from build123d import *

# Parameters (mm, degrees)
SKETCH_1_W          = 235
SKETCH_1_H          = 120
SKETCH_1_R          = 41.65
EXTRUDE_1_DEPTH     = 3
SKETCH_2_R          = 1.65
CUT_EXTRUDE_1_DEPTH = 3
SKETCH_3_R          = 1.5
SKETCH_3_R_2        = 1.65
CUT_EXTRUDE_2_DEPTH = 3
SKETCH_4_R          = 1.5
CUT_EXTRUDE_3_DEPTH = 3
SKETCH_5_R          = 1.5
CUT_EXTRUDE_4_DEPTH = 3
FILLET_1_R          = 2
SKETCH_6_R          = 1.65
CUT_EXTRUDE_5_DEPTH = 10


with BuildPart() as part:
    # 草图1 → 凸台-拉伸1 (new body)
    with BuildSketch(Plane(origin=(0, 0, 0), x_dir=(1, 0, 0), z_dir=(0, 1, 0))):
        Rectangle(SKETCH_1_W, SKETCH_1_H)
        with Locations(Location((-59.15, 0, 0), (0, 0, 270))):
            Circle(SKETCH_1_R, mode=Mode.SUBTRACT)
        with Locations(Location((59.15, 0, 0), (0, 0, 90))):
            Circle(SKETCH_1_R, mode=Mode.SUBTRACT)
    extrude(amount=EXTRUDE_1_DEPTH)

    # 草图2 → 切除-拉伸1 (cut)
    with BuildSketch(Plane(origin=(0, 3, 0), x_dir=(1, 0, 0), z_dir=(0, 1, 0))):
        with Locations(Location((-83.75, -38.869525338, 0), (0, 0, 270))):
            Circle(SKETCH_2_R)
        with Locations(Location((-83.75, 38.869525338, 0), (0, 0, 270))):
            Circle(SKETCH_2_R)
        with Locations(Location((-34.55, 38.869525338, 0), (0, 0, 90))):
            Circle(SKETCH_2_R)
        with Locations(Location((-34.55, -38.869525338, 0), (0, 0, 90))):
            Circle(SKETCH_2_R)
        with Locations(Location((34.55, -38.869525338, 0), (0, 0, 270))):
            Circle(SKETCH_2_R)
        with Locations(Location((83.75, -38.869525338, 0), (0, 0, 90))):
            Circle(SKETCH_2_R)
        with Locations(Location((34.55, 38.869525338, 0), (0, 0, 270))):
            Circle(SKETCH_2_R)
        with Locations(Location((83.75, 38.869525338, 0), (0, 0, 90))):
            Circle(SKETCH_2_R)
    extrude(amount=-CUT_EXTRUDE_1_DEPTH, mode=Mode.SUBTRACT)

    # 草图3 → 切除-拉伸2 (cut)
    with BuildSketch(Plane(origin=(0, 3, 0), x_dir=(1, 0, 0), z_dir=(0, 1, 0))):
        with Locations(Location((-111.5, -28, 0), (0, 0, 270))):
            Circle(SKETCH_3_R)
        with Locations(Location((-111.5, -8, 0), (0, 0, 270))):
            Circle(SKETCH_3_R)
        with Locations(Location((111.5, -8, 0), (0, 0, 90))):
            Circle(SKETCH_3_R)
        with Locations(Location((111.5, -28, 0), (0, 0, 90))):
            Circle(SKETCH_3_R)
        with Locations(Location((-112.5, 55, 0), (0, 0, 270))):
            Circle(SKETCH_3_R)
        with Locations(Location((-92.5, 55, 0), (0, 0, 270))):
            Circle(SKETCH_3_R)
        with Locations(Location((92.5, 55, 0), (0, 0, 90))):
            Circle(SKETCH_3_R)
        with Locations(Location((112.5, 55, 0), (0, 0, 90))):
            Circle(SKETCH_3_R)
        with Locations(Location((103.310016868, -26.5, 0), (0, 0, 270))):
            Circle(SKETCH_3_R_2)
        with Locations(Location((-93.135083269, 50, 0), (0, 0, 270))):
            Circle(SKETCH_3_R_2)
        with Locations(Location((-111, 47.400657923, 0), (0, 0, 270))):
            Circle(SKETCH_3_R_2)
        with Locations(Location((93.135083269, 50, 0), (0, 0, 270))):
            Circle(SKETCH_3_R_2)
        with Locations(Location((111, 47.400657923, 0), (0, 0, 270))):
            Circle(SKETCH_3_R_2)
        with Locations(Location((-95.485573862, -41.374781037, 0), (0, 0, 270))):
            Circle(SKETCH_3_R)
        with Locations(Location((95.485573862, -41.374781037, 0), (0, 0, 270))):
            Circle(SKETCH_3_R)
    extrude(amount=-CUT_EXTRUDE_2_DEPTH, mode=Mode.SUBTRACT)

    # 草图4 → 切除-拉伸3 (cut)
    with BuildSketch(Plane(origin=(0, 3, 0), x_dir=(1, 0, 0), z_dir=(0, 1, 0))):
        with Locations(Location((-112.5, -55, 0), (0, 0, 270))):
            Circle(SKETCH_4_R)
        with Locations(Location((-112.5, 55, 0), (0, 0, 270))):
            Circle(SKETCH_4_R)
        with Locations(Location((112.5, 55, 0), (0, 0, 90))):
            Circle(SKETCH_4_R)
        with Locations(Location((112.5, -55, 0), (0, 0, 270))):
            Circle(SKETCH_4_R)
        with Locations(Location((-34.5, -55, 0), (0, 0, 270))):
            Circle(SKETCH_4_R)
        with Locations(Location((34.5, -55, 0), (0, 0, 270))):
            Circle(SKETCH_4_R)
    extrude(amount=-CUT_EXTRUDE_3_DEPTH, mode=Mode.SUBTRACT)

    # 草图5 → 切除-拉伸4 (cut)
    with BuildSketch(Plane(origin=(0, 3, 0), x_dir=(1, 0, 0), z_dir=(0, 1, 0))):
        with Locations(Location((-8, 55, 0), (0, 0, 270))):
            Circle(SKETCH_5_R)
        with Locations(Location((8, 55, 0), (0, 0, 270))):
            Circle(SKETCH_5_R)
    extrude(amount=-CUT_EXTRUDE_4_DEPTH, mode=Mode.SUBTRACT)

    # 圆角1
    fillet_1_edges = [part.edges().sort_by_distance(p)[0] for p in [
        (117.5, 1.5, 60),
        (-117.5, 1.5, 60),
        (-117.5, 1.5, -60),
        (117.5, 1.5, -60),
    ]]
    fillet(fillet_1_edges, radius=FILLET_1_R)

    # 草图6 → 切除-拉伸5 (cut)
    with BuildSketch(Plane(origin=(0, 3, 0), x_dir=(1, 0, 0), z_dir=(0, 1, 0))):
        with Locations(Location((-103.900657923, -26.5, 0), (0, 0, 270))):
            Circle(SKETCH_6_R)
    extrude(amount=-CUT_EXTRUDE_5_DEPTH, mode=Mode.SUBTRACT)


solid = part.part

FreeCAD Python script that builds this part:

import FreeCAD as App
import Part
import Sketcher
from FreeCAD import Vector


def edges_at(feature, points):
    """Names of the edges that pass closest to the given points."""
    edges = feature.Shape.Edges
    near = lambda p: min(range(len(edges)), key=lambda i: edges[i].distToShape(Part.Vertex(*p))[0])
    return sorted({f"Edge{near(p) + 1}" for p in points})

doc = App.newDocument("Part")
params = doc.addObject("Spreadsheet::Sheet", "Params")
for row, (alias, value) in enumerate([
    ("sketch1_diameter", "83.3 mm"),
    ("sketch1_width", "235 mm"),
    ("sketch1_height", "120 mm"),
    ("pad1_length", "3 mm"),
    ("sketch2_diameter", "3.3 mm"),
    ("pocket1_length", "3 mm"),
    ("sketch3_diameter", "3 mm"),
    ("sketch3_diameter2", "3.3 mm"),
    ("pocket2_length", "3 mm"),
    ("sketch4_diameter", "3 mm"),
    ("pocket3_length", "3 mm"),
    ("sketch5_diameter", "3 mm"),
    ("pocket4_length", "3 mm"),
    ("fillet_radius", "2 mm"),
    ("sketch6_diameter", "3.3 mm"),
    ("pocket5_length", "10 mm"),
], start=1):
    params.set(f"A{row}", alias)
    params.set(f"B{row}", "=" + value)
    params.setAlias(f"B{row}", alias)

body = doc.addObject("PartDesign::Body", "Body")

# Sketch on XZ plane
sketch1 = body.newObject("Sketcher::SketchObject", "Sketch")
sketch1.AttachmentSupport = (doc.getObject("XZ_Plane"), [""])
sketch1.MapMode = "FlatFace"
sketch1.addGeometry([
    Part.LineSegment(Vector(-118, -60, 0), Vector(-118, 60, 0)),  # 0
    Part.LineSegment(Vector(-118, 60, 0), Vector(118, 60, 0)),  # 1
    Part.LineSegment(Vector(118, 60, 0), Vector(118, -60, 0)),  # 2
    Part.LineSegment(Vector(118, -60, 0), Vector(-118, -60, 0)),  # 3
    Part.Circle(Vector(-59, 0, 0), Vector(0, 0, 1), 42),  # 4
    Part.Circle(Vector(59, 0, 0), Vector(0, 0, 1), 42),  # 5
], False)
sketch1.addConstraint([
    Sketcher.Constraint("Coincident", 0, 2, 1, 1),
    Sketcher.Constraint("Coincident", 1, 2, 2, 1),
    Sketcher.Constraint("Coincident", 2, 2, 3, 1),
    Sketcher.Constraint("Coincident", 3, 2, 0, 1),
    Sketcher.Constraint("Vertical", 0),
    Sketcher.Constraint("Horizontal", 1),
    Sketcher.Constraint("Vertical", 2),
    Sketcher.Constraint("Horizontal", 3),
    Sketcher.Constraint("Equal", 4, 5),
    Sketcher.Constraint("Symmetric", 4, 3, 5, 3, -1, 1),
    Sketcher.Constraint("Symmetric", 0, 2, 2, 2, -1, 1),
    Sketcher.Constraint("PointOnObject", 4, 3, -1),
    Sketcher.Constraint("Diameter", 4, 83.3),
    Sketcher.Constraint("DistanceX", 1, 1, 1, 2, 235.0),
    Sketcher.Constraint("DistanceY", 0, 1, 0, 2, 120.0),
    Sketcher.Constraint("DistanceX", 4, 3, 5, 3, 118.3),
])
sketch1.setExpression("Constraints[12]", "Params.sketch1_diameter")
sketch1.setExpression("Constraints[13]", "Params.sketch1_width")
sketch1.setExpression("Constraints[14]", "Params.sketch1_height")
pad1 = body.newObject("PartDesign::Pad", "Pad")
pad1.Profile = sketch1
pad1.setExpression("Length", "Params.pad1_length")
pad1.Reversed = True

# Sketch on XZ plane
sketch2 = body.newObject("Sketcher::SketchObject", "Sketch001")
sketch2.AttachmentSupport = (doc.getObject("XZ_Plane"), [""])
sketch2.MapMode = "FlatFace"
sketch2.AttachmentOffset = App.Placement(Vector(0, 0, -3), App.Rotation())
sketch2.addGeometry([
    Part.Circle(Vector(-83.8, 38.9, 0), Vector(0, 0, 1), 1.6),  # 0
    Part.Circle(Vector(-83.8, -38.9, 0), Vector(0, 0, 1), 1.6),  # 1
    Part.Circle(Vector(-34.5, -38.9, 0), Vector(0, 0, 1), 1.6),  # 2
    Part.Circle(Vector(-34.5, 38.9, 0), Vector(0, 0, 1), 1.6),  # 3
    Part.Circle(Vector(34.5, 38.9, 0), Vector(0, 0, 1), 1.6),  # 4
    Part.Circle(Vector(83.8, 38.9, 0), Vector(0, 0, 1), 1.6),  # 5
    Part.Circle(Vector(34.5, -38.9, 0), Vector(0, 0, 1), 1.6),  # 6
    Part.Circle(Vector(83.8, -38.9, 0), Vector(0, 0, 1), 1.6),  # 7
], False)
sketch2.addConstraint([
    Sketcher.Constraint("Equal", 0, 1),
    Sketcher.Constraint("Equal", 1, 2),
    Sketcher.Constraint("Equal", 2, 3),
    Sketcher.Constraint("Equal", 3, 4),
    Sketcher.Constraint("Equal", 4, 5),
    Sketcher.Constraint("Equal", 5, 6),
    Sketcher.Constraint("Equal", 6, 7),
    Sketcher.Constraint("Symmetric", 2, 3, 4, 3, -1, 1),
    Sketcher.Constraint("Symmetric", 1, 3, 5, 3, -1, 1),
    Sketcher.Constraint("Symmetric", 3, 3, 6, 3, -1, 1),
    Sketcher.Constraint("Symmetric", 0, 3, 7, 3, -1, 1),
    Sketcher.Constraint("Symmetric", 3, 3, 4, 3, -2),
    Sketcher.Constraint("Symmetric", 0, 3, 5, 3, -2),
    Sketcher.Constraint("Horizontal", 1, 3, 2, 3),
    Sketcher.Constraint("Diameter", 0, 3.3),
    Sketcher.Constraint("DistanceX", 1, 3, 2, 3, 49.2),
    Sketcher.Constraint("DistanceX", 3, 3, 4, 3, 69.1),
    Sketcher.Constraint("DistanceY", 1, 3, 0, 3, 77.739051),
])
sketch2.setExpression("Constraints[14]", "Params.sketch2_diameter")
pocket1 = body.newObject("PartDesign::Pocket", "Pocket")
pocket1.Profile = sketch2
pocket1.setExpression("Length", "Params.pocket1_length")
pocket1.Reversed = True

# Sketch on XZ plane
sketch3 = body.newObject("Sketcher::SketchObject", "Sketch002")
sketch3.AttachmentSupport = (doc.getObject("XZ_Plane"), [""])
sketch3.MapMode = "FlatFace"
sketch3.AttachmentOffset = App.Placement(Vector(0, 0, -3), App.Rotation())
sketch3.addGeometry([
    Part.Circle(Vector(-111.5, 28, 0), Vector(0, 0, 1), 1.5),  # 0
    Part.Circle(Vector(-111.5, 8, 0), Vector(0, 0, 1), 1.5),  # 1
    Part.Circle(Vector(111.5, 8, 0), Vector(0, 0, 1), 1.5),  # 2
    Part.Circle(Vector(111.5, 28, 0), Vector(0, 0, 1), 1.5),  # 3
    Part.Circle(Vector(-112.5, -55, 0), Vector(0, 0, 1), 1.5),  # 4
    Part.Circle(Vector(-92.5, -55, 0), Vector(0, 0, 1), 1.5),  # 5
    Part.Circle(Vector(92.5, -55, 0), Vector(0, 0, 1), 1.5),  # 6
    Part.Circle(Vector(112.5, -55, 0), Vector(0, 0, 1), 1.5),  # 7
    Part.Circle(Vector(103.3, 26.5, 0), Vector(0, 0, 1), 1.6),  # 8
    Part.Circle(Vector(-93.1, -50, 0), Vector(0, 0, 1), 1.6),  # 9
    Part.Circle(Vector(-111, -47.4, 0), Vector(0, 0, 1), 1.6),  # 10
    Part.Circle(Vector(93.1, -50, 0), Vector(0, 0, 1), 1.6),  # 11
    Part.Circle(Vector(111, -47.4, 0), Vector(0, 0, 1), 1.6),  # 12
    Part.Circle(Vector(-95.5, 41.4, 0), Vector(0, 0, 1), 1.5),  # 13
    Part.Circle(Vector(95.5, 41.4, 0), Vector(0, 0, 1), 1.5),  # 14
], False)
sketch3.addConstraint([
    Sketcher.Constraint("Equal", 0, 1),
    Sketcher.Constraint("Equal", 1, 2),
    Sketcher.Constraint("Equal", 2, 3),
    Sketcher.Constraint("Equal", 3, 4),
    Sketcher.Constraint("Equal", 4, 5),
    Sketcher.Constraint("Equal", 5, 6),
    Sketcher.Constraint("Equal", 6, 7),
    Sketcher.Constraint("Equal", 8, 9),
    Sketcher.Constraint("Equal", 9, 10),
    Sketcher.Constraint("Equal", 10, 11),
    Sketcher.Constraint("Equal", 11, 12),
    Sketcher.Constraint("Equal", 7, 13),
    Sketcher.Constraint("Equal", 13, 14),
    Sketcher.Constraint("Symmetric", 1, 3, 2, 3, -2),
    Sketcher.Constraint("Symmetric", 0, 3, 3, 3, -2),
    Sketcher.Constraint("Symmetric", 5, 3, 6, 3, -2),
    Sketcher.Constraint("Symmetric", 4, 3, 7, 3, -2),
    Sketcher.Constraint("Symmetric", 9, 3, 11, 3, -2),
    Sketcher.Constraint("Symmetric", 10, 3, 12, 3, -2),
    Sketcher.Constraint("Symmetric", 13, 3, 14, 3, -2),
    Sketcher.Constraint("Horizontal", 4, 3, 5, 3),
    Sketcher.Constraint("Vertical", 0, 3, 1, 3),
    Sketcher.Constraint("Diameter", 0, 3.0),
    Sketcher.Constraint("Diameter", 8, 3.3),
    Sketcher.Constraint("DistanceY", -1, 1, 0, 3, 28.0),
    Sketcher.Constraint("DistanceY", -1, 1, 1, 3, 8.0),
    Sketcher.Constraint("DistanceY", 4, 3, -1, 1, 55.0),
    Sketcher.Constraint("DistanceY", 9, 3, -1, 1, 50.0),
    Sketcher.Constraint("DistanceX", 10, 3, -1, 1, 111.0),
    Sketcher.Constraint("DistanceX", 1, 3, 2, 3, 223.0),
    Sketcher.Constraint("DistanceX", 4, 3, 1, 3, 1.0),
    Sketcher.Constraint("DistanceX", 4, 3, 5, 3, 20.0),
    Sketcher.Constraint("DistanceY", -1, 1, 8, 3, 26.5),
    Sketcher.Constraint("DistanceY", -1, 1, 13, 3, 41.374781),
    Sketcher.Constraint("DistanceY", 10, 3, 13, 3, 88.775439),
    Sketcher.Constraint("DistanceX", 13, 3, 9, 3, 2.350491),
    Sketcher.Constraint("DistanceX", -1, 1, 8, 3, 103.310017),
    Sketcher.Constraint("DistanceX", 9, 3, -1, 1, 93.135083),
])
sketch3.setExpression("Constraints[22]", "Params.sketch3_diameter")
sketch3.setExpression("Constraints[23]", "Params.sketch3_diameter2")
pocket2 = body.newObject("PartDesign::Pocket", "Pocket001")
pocket2.Profile = sketch3
pocket2.setExpression("Length", "Params.pocket2_length")
pocket2.Reversed = True

# Sketch on XZ plane
sketch4 = body.newObject("Sketcher::SketchObject", "Sketch003")
sketch4.AttachmentSupport = (doc.getObject("XZ_Plane"), [""])
sketch4.MapMode = "FlatFace"
sketch4.AttachmentOffset = App.Placement(Vector(0, 0, -3), App.Rotation())
sketch4.addGeometry([
    Part.Circle(Vector(-112.5, 55, 0), Vector(0, 0, 1), 1.5),  # 0
    Part.Circle(Vector(-112.5, -55, 0), Vector(0, 0, 1), 1.5),  # 1
    Part.Circle(Vector(112.5, -55, 0), Vector(0, 0, 1), 1.5),  # 2
    Part.Circle(Vector(112.5, 55, 0), Vector(0, 0, 1), 1.5),  # 3
    Part.Circle(Vector(-34.5, 55, 0), Vector(0, 0, 1), 1.5),  # 4
    Part.Circle(Vector(34.5, 55, 0), Vector(0, 0, 1), 1.5),  # 5
], False)
sketch4.addConstraint([
    Sketcher.Constraint("Equal", 0, 1),
    Sketcher.Constraint("Equal", 1, 2),
    Sketcher.Constraint("Equal", 2, 3),
    Sketcher.Constraint("Equal", 3, 4),
    Sketcher.Constraint("Equal", 4, 5),
    Sketcher.Constraint("Symmetric", 0, 3, 2, 3, -1, 1),
    Sketcher.Constraint("Symmetric", 1, 3, 3, 3, -1, 1),
    Sketcher.Constraint("Symmetric", 1, 3, 2, 3, -2),
    Sketcher.Constraint("Symmetric", 4, 3, 5, 3, -2),
    Sketcher.Constraint("Horizontal", 3, 3, 4, 3),
    Sketcher.Constraint("Diameter", 0, 3.0),
    Sketcher.Constraint("DistanceY", -1, 1, 0, 3, 55.0),
    Sketcher.Constraint("DistanceX", 1, 3, 2, 3, 225.0),
    Sketcher.Constraint("DistanceX", 0, 3, 4, 3, 78.0),
])
sketch4.setExpression("Constraints[10]", "Params.sketch4_diameter")
pocket3 = body.newObject("PartDesign::Pocket", "Pocket002")
pocket3.Profile = sketch4
pocket3.setExpression("Length", "Params.pocket3_length")
pocket3.Reversed = True

# Sketch on XZ plane
sketch5 = body.newObject("Sketcher::SketchObject", "Sketch004")
sketch5.AttachmentSupport = (doc.getObject("XZ_Plane"), [""])
sketch5.MapMode = "FlatFace"
sketch5.AttachmentOffset = App.Placement(Vector(0, 0, -3), App.Rotation())
sketch5.addGeometry([
    Part.Circle(Vector(-8, -55, 0), Vector(0, 0, 1), 1.5),
    Part.Circle(Vector(8, -55, 0), Vector(0, 0, 1), 1.5),
], False)
sketch5.addConstraint([
    Sketcher.Constraint("Equal", 0, 1),
    Sketcher.Constraint("Symmetric", 0, 3, 1, 3, -2),
    Sketcher.Constraint("Diameter", 0, 3.0),
    Sketcher.Constraint("DistanceX", 0, 3, -1, 1, 8.0),
    Sketcher.Constraint("DistanceY", 0, 3, -1, 1, 55.0),
])
sketch5.setExpression("Constraints[2]", "Params.sketch5_diameter")
pocket4 = body.newObject("PartDesign::Pocket", "Pocket003")
pocket4.Profile = sketch5
pocket4.setExpression("Length", "Params.pocket4_length")
pocket4.Reversed = True
doc.recompute()

fillet = body.newObject("PartDesign::Fillet", "Fillet")
fillet.Base = (pocket4, edges_at(pocket4, [
    (117.5, 1.5, 60),
    (-117.5, 1.5, 60),
    (-117.5, 1.5, -60),
    (117.5, 1.5, -60),
]))
fillet.setExpression("Radius", "Params.fillet_radius")

# Sketch on XZ plane
sketch6 = body.newObject("Sketcher::SketchObject", "Sketch005")
sketch6.AttachmentSupport = (doc.getObject("XZ_Plane"), [""])
sketch6.MapMode = "FlatFace"
sketch6.AttachmentOffset = App.Placement(Vector(0, 0, -3), App.Rotation())
sketch6.addGeometry(Part.Circle(Vector(-103.9, 26.5, 0), Vector(0, 0, 1), 1.6), False)
sketch6.addConstraint([
    Sketcher.Constraint("Diameter", 0, 3.3),
    Sketcher.Constraint("DistanceY", -1, 1, 0, 3, 26.5),
    Sketcher.Constraint("DistanceX", 0, 3, -1, 1, 103.900658),
])
sketch6.setExpression("Constraints[0]", "Params.sketch6_diameter")
pocket5 = body.newObject("PartDesign::Pocket", "Pocket004")
pocket5.Profile = sketch6
pocket5.setExpression("Length", "Params.pocket5_length")
pocket5.Reversed = True

doc.recompute()
